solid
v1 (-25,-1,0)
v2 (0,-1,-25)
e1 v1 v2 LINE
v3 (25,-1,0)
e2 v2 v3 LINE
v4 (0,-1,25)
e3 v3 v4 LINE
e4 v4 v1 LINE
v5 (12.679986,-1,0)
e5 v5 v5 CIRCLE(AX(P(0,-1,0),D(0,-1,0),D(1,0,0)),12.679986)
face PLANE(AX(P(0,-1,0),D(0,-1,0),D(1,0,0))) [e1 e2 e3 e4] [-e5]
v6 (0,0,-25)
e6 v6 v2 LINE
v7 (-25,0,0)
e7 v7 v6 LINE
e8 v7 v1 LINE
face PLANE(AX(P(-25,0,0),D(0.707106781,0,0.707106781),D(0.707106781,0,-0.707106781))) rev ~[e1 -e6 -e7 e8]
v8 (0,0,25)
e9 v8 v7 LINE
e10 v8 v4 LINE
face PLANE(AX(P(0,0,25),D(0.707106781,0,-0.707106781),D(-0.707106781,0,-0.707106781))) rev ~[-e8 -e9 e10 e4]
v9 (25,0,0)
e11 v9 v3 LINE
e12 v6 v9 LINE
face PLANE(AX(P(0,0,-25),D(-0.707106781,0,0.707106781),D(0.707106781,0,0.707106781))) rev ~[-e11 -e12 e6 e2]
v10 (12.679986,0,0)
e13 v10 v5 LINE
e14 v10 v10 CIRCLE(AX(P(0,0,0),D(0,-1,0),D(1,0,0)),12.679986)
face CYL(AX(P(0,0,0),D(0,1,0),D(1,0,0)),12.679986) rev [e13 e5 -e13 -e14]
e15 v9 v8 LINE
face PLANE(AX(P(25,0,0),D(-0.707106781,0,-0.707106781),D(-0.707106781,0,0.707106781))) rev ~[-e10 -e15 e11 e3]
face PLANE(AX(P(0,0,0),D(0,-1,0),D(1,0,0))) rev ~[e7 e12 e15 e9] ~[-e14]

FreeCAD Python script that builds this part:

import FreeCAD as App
import Part
import Sketcher
Q = App.Units.Quantity


def add_polygon(sketch, points):
    """Adds a closed chain of lines whose ends are joined by coincident constraints."""
    first, n = sketch.GeometryCount, len(points)
    for a, b in zip(points, points[1:] + points[:1]):
        sketch.addGeometry(Part.LineSegment(App.Vector(*a, 0), App.Vector(*b, 0)), False)
    for i in range(n):
        sketch.addConstraint(Sketcher.Constraint("Coincident", first + i, 2, first + (i + 1) % n, 1))

doc = App.newDocument("Part")
body = doc.addObject("PartDesign::Body", "Body")

sketch1 = doc.addObject("Sketcher::SketchObject", "Sketch")
body.addObject(sketch1)
sketch1.AttachmentSupport = (doc.XZ_Plane, [""])
sketch1.MapMode = "FlatFace"
add_polygon(sketch1, [(0, 25), (-25, 0), (0, -25), (25, 0)])
sketch1.addGeometry(Part.Circle(App.Vector(0, 0, 0), App.Vector(0, 0, 1), 13), False)
sketch1.addConstraint([
    Sketcher.Constraint("Coincident", 4, 3, -1, 1),
    Sketcher.Constraint("Symmetric", 0, 2, 2, 2, -1, 1),
    Sketcher.Constraint("Symmetric", 1, 2, 3, 2, -1, 1),
    Sketcher.Constraint("PointOnObject", 0, 2, -1),
    Sketcher.Constraint("PointOnObject", 1, 2, -2),
    Sketcher.Constraint("Perpendicular", 0, 1),
    Sketcher.Constraint("DistanceX", 0, 2, -1, 1, Q("25 mm")),
    Sketcher.Constraint("Diameter", 4, Q("25.359972 mm")),
])
pad1 = doc.addObject("PartDesign::Pad", "Pad")
body.addObject(pad1)
pad1.Profile = sketch1
pad1.Length = 1

doc.recompute()
